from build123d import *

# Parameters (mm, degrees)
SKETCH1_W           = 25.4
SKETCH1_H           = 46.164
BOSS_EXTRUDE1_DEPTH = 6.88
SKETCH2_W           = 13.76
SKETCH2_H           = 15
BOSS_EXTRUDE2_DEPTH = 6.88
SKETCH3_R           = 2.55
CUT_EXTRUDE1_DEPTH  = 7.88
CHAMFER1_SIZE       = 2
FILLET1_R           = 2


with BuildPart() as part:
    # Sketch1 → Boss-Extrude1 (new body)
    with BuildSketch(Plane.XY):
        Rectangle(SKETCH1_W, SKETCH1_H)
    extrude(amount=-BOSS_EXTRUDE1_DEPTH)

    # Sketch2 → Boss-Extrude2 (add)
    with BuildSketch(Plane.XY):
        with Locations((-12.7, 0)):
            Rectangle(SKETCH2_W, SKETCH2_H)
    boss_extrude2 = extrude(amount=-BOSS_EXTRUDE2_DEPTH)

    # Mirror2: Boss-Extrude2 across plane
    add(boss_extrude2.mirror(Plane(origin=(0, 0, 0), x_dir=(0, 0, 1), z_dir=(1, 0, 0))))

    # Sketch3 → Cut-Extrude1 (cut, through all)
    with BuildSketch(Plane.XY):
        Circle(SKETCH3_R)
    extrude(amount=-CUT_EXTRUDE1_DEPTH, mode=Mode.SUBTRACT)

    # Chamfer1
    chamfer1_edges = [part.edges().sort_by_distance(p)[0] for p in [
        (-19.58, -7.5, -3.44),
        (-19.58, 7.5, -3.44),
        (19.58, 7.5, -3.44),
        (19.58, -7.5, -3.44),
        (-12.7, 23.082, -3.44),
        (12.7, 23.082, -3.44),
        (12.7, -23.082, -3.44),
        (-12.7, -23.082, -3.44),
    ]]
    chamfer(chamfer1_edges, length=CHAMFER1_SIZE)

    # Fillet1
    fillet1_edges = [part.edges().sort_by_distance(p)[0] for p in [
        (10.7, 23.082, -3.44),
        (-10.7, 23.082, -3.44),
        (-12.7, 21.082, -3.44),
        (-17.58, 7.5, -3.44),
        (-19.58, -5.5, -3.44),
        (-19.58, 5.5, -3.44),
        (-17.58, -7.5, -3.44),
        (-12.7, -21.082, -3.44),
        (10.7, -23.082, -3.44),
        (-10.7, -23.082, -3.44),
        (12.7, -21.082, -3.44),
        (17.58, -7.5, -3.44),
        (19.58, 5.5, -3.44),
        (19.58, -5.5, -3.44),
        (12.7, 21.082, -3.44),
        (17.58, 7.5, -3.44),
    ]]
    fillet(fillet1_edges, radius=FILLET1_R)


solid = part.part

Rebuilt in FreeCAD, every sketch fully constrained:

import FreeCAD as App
import Part
import Sketcher
from FreeCAD import Vector
Q = App.Units.Quantity


def edges_at(feature, points):
    """Names of the edges that pass closest to the given points."""
    edges = feature.Shape.Edges
    near = lambda p: min(range(len(edges)), key=lambda i: edges[i].distToShape(Part.Vertex(*p))[0])
    return sorted({f"Edge{near(p) + 1}" for p in points})

doc = App.newDocument("Part")
body = doc.addObject("PartDesign::Body", "Body")

# Sketch on XY plane
sketch1 = doc.addObject("Sketcher::SketchObject", "Sketch")
body.addObject(sketch1)
sketch1.AttachmentSupport = (doc.XY_Plane, [""])
sketch1.MapMode = "FlatFace"
sketch1.addGeometry([
    Part.LineSegment(Vector(-13, 23, 0), Vector(-13, -23, 0)),
    Part.LineSegment(Vector(-13, -23, 0), Vector(13, -23, 0)),
    Part.LineSegment(Vector(13, -23, 0), Vector(13, 23, 0)),
    Part.LineSegment(Vector(13, 23, 0), Vector(-13, 23, 0)),
], False)
sketch1.addConstraint([
    Sketcher.Constraint("Coincident", 0, 2, 1, 1),
    Sketcher.Constraint("Coincident", 1, 2, 2, 1),
    Sketcher.Constraint("Coincident", 2, 2, 3, 1),
    Sketcher.Constraint("Coincident", 3, 2, 0, 1),
    Sketcher.Constraint("Vertical", 0),
    Sketcher.Constraint("Horizontal", 1),
    Sketcher.Constraint("Vertical", 2),
    Sketcher.Constraint("Horizontal", 3),
    Sketcher.Constraint("Symmetric", 0, 2, 2, 2, -1, 1),
    Sketcher.Constraint("DistanceX", 1, 1, 1, 2, Q("25.4 mm")),
    Sketcher.Constraint("DistanceY", 0, 2, 0, 1, Q("46.164 mm")),
])
pad1 = doc.addObject("PartDesign::Pad", "Pad")
body.addObject(pad1)
pad1.Profile = sketch1
pad1.Length = 6.88
pad1.Reversed = True

# Sketch on XY plane
sketch2 = doc.addObject("Sketcher::SketchObject", "Sketch001")
body.addObject(sketch2)
sketch2.AttachmentSupport = (doc.XY_Plane, [""])
sketch2.MapMode = "FlatFace"
sketch2.addGeometry([
    Part.LineSegment(Vector(-20, 8, 0), Vector(-20, -8, 0)),
    Part.LineSegment(Vector(-20, -8, 0), Vector(-6, -8, 0)),
    Part.LineSegment(Vector(-6, -8, 0), Vector(-6, 8, 0)),
    Part.LineSegment(Vector(-6, 8, 0), Vector(-20, 8, 0)),
], False)
sketch2.addConstraint([
    Sketcher.Constraint("Coincident", 0, 2, 1, 1),
    Sketcher.Constraint("Coincident", 1, 2, 2, 1),
    Sketcher.Constraint("Coincident", 2, 2, 3, 1),
    Sketcher.Constraint("Coincident", 3, 2, 0, 1),
    Sketcher.Constraint("Vertical", 0),
    Sketcher.Constraint("Horizontal", 1),
    Sketcher.Constraint("Vertical", 2),
    Sketcher.Constraint("Horizontal", 3),
    Sketcher.Constraint("DistanceY", 0, 2, 0, 1, Q("15 mm")),
    Sketcher.Constraint("DistanceX", 1, 1, 1, 2, Q("13.76 mm")),
    Sketcher.Constraint("DistanceY", 0, 2, -1, 1, Q("7.5 mm")),
    Sketcher.Constraint("DistanceX", 0, 2, -1, 1, Q("19.58 mm")),
])
pad2 = doc.addObject("PartDesign::Pad", "Pad001")
body.addObject(pad2)
pad2.Profile = sketch2
pad2.Length = 6.88
pad2.Reversed = True
doc.recompute()

mirrored = doc.addObject("PartDesign::Mirrored", "Mirrored")
body.addObject(mirrored)
mirrored.Originals = [pad2]
mirrored.MirrorPlane = (doc.YZ_Plane, [""])
body.Tip = mirrored

# Sketch on XY plane
sketch3 = doc.addObject("Sketcher::SketchObject", "Sketch002")
body.addObject(sketch3)
sketch3.AttachmentSupport = (doc.XY_Plane, [""])
sketch3.MapMode = "FlatFace"
sketch3.addGeometry(Part.Circle(Vector(0, 0, 0), Vector(0, 0, 1), 2.5), False)
sketch3.addConstraint([
    Sketcher.Constraint("Coincident", 0, 3, -1, 1),
    Sketcher.Constraint("Diameter", 0, Q("5.1 mm")),
])
pocket1 = doc.addObject("PartDesign::Pocket", "Pocket")
body.addObject(pocket1)
pocket1.Profile = sketch3
pocket1.Type = "ThroughAll"
doc.recompute()

chamfer = doc.addObject("PartDesign::Chamfer", "Chamfer")
body.addObject(chamfer)
chamfer.Base = (pocket1, edges_at(pocket1, [
    (-19.58, -7.5, -3.44),
    (-19.58, 7.5, -3.44),
    (19.58, 7.5, -3.44),
    (19.58, -7.5, -3.44),
    (-12.7, 23.082, -3.44),
    (12.7, 23.082, -3.44),
    (12.7, -23.082, -3.44),
    (-12.7, -23.082, -3.44),
]))
chamfer.Size = 2
doc.recompute()

fillet = doc.addObject("PartDesign::Fillet", "Fillet")
body.addObject(fillet)
fillet.Base = (chamfer, edges_at(chamfer, [
    (10.7, 23.082, -3.44),
    (-10.7, 23.082, -3.44),
    (-12.7, 21.082, -3.44),
    (-17.58, 7.5, -3.44),
    (-19.58, -5.5, -3.44),
    (-19.58, 5.5, -3.44),
    (-17.58, -7.5, -3.44),
    (-12.7, -21.082, -3.44),
    (10.7, -23.082, -3.44),
    (-10.7, -23.082, -3.44),
    (12.7, -21.082, -3.44),
    (17.58, -7.5, -3.44),
    (19.58, 5.5, -3.44),
    (19.58, -5.5, -3.44),
    (12.7, 21.082, -3.44),
    (17.58, 7.5, -3.44),
]))
fillet.Radius = 2

doc.recompute()
